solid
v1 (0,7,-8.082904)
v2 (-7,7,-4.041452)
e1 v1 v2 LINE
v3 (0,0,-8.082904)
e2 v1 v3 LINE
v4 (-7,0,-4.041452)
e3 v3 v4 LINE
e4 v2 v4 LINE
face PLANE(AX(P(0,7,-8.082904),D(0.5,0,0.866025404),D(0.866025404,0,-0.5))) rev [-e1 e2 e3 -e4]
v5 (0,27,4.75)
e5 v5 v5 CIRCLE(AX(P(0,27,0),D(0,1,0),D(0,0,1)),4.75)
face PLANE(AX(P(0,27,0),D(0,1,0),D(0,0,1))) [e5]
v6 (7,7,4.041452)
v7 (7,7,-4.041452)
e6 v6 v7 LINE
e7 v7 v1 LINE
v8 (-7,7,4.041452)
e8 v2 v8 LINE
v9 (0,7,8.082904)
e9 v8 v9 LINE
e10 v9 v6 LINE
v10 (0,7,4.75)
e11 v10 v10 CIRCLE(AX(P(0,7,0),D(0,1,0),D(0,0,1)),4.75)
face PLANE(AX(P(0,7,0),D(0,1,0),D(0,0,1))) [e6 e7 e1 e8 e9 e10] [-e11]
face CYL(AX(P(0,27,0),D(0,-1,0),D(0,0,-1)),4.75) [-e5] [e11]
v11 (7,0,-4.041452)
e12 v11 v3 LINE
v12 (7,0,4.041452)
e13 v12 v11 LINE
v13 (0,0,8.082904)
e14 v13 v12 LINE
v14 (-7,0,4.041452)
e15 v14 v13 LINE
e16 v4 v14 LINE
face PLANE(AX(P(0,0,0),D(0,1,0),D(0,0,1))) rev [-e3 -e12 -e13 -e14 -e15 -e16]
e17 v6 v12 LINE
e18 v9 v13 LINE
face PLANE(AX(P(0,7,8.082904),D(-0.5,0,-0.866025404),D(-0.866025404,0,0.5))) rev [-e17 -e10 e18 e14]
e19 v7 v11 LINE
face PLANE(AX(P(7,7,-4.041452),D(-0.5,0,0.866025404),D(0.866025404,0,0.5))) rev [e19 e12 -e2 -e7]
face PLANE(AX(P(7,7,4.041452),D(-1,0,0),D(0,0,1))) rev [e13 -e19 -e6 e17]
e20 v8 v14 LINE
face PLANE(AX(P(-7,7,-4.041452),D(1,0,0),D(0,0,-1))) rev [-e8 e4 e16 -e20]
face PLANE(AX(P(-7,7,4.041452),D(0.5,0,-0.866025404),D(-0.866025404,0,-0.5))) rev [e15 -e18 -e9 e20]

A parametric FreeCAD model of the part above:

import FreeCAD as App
import Part
import Sketcher
from FreeCAD import Vector
Q = App.Units.Quantity


def add_polygon(sketch, points):
    """Adds a closed chain of lines whose ends are joined by coincident constraints."""
    first, n = sketch.GeometryCount, len(points)
    for a, b in zip(points, points[1:] + points[:1]):
        sketch.addGeometry(Part.LineSegment(App.Vector(*a, 0), App.Vector(*b, 0)), False)
    for i in range(n):
        sketch.addConstraint(Sketcher.Constraint("Coincident", first + i, 2, first + (i + 1) % n, 1))

doc = App.newDocument("Part")
body = doc.addObject("PartDesign::Body", "Body")

# Sketch on XZ plane
sketch1 = body.newObject("Sketcher::SketchObject", "Sketch")
sketch1.AttachmentSupport = (doc.getObject("XZ_Plane"), [""])
sketch1.MapMode = "FlatFace"
add_polygon(sketch1, [(0, -8), (-7, -4), (-7, 4), (0, 8), (7, 4), (7, -4)])  # lines 0-5
sketch1.addConstraint([
    Sketcher.Constraint("Vertical", 1),
    Sketcher.Constraint("Vertical", 4),
    Sketcher.Constraint("Symmetric", 0, 2, 3, 2, -1, 1),
    Sketcher.Constraint("Symmetric", 2, 2, 5, 2, -1, 1),
    Sketcher.Constraint("PointOnObject", 2, 2, -2),
    Sketcher.Constraint("Parallel", 2, 5),
    Sketcher.Constraint("Horizontal", 1, 2, 3, 2),
    Sketcher.Constraint("Angle", 0, Q("150 deg")),
    Sketcher.Constraint("DistanceX", 0, 2, -1, 1, 7.0),
    Sketcher.Constraint("DistanceY", 1, 1, 1, 2, 8.082904),
])
pad1 = body.newObject("PartDesign::Pad", "Pad")
pad1.Profile = sketch1
pad1.Length = 7
pad1.Reversed = True

# Sketch on XZ plane
sketch2 = body.newObject("Sketcher::SketchObject", "Sketch001")
sketch2.AttachmentSupport = (doc.getObject("XZ_Plane"), [""])
sketch2.MapMode = "FlatFace"
sketch2.AttachmentOffset = App.Placement(Vector(0, 0, -7), App.Rotation())
sketch2.addGeometry(Part.Circle(Vector(0, 0, 0), Vector(0, 0, 1), 4.8), False)
sketch2.addConstraint([
    Sketcher.Constraint("Coincident", 0, 3, -1, 1),
    Sketcher.Constraint("Diameter", 0, 9.5),
])
pad2 = body.newObject("PartDesign::Pad", "Pad001")
pad2.Profile = sketch2
pad2.Length = 20
pad2.Reversed = True

doc.recompute()
